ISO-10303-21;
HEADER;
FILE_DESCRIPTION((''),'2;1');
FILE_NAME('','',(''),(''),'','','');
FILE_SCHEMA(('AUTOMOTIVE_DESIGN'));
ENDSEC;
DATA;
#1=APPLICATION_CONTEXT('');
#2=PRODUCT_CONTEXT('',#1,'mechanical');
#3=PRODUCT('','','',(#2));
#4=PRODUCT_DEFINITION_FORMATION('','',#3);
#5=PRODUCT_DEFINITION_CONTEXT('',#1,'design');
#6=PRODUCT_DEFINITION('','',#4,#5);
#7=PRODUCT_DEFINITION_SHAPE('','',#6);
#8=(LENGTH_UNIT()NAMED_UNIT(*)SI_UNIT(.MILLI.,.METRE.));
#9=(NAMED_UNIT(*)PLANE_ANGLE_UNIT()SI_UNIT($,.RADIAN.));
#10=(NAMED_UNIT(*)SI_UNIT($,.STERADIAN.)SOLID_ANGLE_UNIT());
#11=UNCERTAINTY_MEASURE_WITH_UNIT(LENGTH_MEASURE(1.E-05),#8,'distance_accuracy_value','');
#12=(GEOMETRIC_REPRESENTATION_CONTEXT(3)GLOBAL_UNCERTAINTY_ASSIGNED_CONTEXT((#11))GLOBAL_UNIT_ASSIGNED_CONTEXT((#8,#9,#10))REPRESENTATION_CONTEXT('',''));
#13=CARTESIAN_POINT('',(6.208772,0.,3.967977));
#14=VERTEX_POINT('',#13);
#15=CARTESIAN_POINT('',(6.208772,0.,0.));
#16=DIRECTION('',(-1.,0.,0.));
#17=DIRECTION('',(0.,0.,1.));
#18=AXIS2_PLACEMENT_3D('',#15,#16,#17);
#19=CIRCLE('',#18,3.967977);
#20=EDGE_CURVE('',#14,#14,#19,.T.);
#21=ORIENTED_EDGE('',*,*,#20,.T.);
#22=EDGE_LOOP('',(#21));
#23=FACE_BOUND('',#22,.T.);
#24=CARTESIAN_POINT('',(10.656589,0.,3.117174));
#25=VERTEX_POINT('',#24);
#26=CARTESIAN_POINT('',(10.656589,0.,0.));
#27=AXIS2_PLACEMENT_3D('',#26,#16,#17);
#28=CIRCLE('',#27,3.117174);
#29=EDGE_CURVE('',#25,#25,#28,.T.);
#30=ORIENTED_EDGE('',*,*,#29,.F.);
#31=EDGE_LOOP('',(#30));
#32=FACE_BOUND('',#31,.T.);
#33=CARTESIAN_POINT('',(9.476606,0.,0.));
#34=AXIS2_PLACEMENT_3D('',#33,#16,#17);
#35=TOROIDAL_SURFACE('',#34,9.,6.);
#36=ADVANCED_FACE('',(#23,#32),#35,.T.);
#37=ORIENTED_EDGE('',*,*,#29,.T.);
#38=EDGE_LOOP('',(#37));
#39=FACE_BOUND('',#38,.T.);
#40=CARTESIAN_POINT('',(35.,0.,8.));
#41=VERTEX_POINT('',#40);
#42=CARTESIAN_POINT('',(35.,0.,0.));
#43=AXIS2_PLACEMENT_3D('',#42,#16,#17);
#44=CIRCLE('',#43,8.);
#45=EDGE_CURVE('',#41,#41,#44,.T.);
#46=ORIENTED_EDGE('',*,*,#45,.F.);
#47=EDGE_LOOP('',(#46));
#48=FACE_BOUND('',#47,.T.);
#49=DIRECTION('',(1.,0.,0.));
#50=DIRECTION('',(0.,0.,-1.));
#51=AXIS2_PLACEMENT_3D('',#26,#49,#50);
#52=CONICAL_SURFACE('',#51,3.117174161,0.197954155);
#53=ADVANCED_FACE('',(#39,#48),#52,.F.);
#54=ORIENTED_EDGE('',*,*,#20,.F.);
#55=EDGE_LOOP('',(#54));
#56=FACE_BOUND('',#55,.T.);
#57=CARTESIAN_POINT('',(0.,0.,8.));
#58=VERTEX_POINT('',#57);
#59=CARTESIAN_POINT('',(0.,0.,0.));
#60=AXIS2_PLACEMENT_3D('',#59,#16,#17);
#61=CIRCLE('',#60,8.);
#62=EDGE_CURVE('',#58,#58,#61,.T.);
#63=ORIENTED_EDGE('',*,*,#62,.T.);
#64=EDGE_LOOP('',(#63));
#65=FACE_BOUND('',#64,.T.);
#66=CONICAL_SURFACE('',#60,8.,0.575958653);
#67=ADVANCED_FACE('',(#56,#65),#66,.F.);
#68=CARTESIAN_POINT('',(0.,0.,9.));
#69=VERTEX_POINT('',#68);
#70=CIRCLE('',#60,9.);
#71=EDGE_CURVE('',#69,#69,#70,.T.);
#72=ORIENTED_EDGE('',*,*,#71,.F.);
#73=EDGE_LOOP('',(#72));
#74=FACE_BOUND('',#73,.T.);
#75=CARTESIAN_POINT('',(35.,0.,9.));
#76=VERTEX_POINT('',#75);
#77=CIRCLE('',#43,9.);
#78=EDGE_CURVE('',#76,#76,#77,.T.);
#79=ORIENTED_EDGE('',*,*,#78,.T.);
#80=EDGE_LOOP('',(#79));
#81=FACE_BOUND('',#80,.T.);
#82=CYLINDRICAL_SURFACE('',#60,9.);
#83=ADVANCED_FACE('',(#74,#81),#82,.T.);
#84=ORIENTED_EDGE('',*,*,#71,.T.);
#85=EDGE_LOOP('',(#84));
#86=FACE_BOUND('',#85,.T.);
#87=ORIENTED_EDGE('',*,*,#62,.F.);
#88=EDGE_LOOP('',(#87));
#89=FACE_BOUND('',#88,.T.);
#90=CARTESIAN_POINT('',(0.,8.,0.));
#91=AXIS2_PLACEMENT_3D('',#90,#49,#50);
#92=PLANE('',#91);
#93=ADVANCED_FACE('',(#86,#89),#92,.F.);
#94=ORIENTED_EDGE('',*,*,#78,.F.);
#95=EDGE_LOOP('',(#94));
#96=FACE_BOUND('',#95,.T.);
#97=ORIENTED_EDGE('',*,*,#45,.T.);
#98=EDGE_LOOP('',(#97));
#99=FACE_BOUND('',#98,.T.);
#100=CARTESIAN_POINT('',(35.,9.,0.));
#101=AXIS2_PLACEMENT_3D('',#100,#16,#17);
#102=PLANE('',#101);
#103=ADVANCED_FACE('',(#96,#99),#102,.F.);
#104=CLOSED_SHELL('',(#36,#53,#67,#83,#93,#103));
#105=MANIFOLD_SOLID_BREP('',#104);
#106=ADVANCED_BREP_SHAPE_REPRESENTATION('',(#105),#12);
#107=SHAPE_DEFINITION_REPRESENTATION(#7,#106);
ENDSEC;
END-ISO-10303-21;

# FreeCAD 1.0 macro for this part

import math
import FreeCAD as App
import Part
import Sketcher
Q = App.Units.Quantity

doc = App.newDocument("Part")
params = doc.addObject("Spreadsheet::Sheet", "Params")
for row, (alias, value) in enumerate([
    ("sketch1_radius", "6 mm"),
    ("sketch1_width", "35 mm"),
    ("sketch1_height", "1 mm"),
    ("revolution_angle", "360 deg"),
], start=1):
    params.set(f"A{row}", alias)
    params.set(f"B{row}", "=" + value)
    params.setAlias(f"B{row}", alias)

body = doc.addObject("PartDesign::Body", "Body")

sketch1 = body.newObject("Sketcher::SketchObject", "Sketch")
sketch1.AttachmentSupport = (doc.getObject("XY_Plane"), [""])
sketch1.MapMode = "FlatFace"
sketch1.addGeometry([
    Part.LineSegment(App.Vector(0, 9, 0), App.Vector(0, 8, 0)),
    Part.LineSegment(App.Vector(0, 8, 0), App.Vector(6.2, 4, 0)),
    Part.ArcOfCircle(Part.Circle(App.Vector(9.5, 9, 0), App.Vector(0, 0, 1), 6), math.radians(-123), math.radians(-79)),
    Part.LineSegment(App.Vector(10.7, 3.1, 0), App.Vector(35, 8, 0)),
    Part.LineSegment(App.Vector(35, 8, 0), App.Vector(35, 9, 0)),
    Part.LineSegment(App.Vector(35, 9, 0), App.Vector(0, 9, 0)),
], False)
sketch1.addConstraint([
    Sketcher.Constraint("Coincident", 0, 2, 1, 1),
    Sketcher.Constraint("Tangent", 1, 2, 2, 1),
    Sketcher.Constraint("Tangent", 2, 2, 3, 1),
    Sketcher.Constraint("Coincident", 3, 2, 4, 1),
    Sketcher.Constraint("Coincident", 4, 2, 5, 1),
    Sketcher.Constraint("Coincident", 5, 2, 0, 1),
    Sketcher.Constraint("Vertical", 0),
    Sketcher.Constraint("Vertical", 4),
    Sketcher.Constraint("Horizontal", 5),
    Sketcher.Constraint("PointOnObject", 0, 2, -2),
    Sketcher.Constraint("Horizontal", 0, 2, 3, 2),
    Sketcher.Constraint("Horizontal", 2, 3, 4, 2),
    Sketcher.Constraint("Radius", 2, 6.0),
    Sketcher.Constraint("DistanceX", 5, 2, 5, 1, 35.0),
    Sketcher.Constraint("DistanceY", 0, 2, 0, 1, 1.0),
    Sketcher.Constraint("Angle", 1, Q("-33 deg")),
    Sketcher.Constraint("DistanceY", -1, 1, 2, 3, 9.0),
])
sketch1.setExpression("Constraints[12]", "Params.sketch1_radius")
sketch1.setExpression("Constraints[13]", "Params.sketch1_width")
sketch1.setExpression("Constraints[14]", "Params.sketch1_height")
revolution = body.newObject("PartDesign::Revolution", "Revolution")
revolution.Profile = sketch1
revolution.ReferenceAxis = (sketch1, ["H_Axis"])
revolution.setExpression("Angle", "Params.revolution_angle")

doc.recompute()
